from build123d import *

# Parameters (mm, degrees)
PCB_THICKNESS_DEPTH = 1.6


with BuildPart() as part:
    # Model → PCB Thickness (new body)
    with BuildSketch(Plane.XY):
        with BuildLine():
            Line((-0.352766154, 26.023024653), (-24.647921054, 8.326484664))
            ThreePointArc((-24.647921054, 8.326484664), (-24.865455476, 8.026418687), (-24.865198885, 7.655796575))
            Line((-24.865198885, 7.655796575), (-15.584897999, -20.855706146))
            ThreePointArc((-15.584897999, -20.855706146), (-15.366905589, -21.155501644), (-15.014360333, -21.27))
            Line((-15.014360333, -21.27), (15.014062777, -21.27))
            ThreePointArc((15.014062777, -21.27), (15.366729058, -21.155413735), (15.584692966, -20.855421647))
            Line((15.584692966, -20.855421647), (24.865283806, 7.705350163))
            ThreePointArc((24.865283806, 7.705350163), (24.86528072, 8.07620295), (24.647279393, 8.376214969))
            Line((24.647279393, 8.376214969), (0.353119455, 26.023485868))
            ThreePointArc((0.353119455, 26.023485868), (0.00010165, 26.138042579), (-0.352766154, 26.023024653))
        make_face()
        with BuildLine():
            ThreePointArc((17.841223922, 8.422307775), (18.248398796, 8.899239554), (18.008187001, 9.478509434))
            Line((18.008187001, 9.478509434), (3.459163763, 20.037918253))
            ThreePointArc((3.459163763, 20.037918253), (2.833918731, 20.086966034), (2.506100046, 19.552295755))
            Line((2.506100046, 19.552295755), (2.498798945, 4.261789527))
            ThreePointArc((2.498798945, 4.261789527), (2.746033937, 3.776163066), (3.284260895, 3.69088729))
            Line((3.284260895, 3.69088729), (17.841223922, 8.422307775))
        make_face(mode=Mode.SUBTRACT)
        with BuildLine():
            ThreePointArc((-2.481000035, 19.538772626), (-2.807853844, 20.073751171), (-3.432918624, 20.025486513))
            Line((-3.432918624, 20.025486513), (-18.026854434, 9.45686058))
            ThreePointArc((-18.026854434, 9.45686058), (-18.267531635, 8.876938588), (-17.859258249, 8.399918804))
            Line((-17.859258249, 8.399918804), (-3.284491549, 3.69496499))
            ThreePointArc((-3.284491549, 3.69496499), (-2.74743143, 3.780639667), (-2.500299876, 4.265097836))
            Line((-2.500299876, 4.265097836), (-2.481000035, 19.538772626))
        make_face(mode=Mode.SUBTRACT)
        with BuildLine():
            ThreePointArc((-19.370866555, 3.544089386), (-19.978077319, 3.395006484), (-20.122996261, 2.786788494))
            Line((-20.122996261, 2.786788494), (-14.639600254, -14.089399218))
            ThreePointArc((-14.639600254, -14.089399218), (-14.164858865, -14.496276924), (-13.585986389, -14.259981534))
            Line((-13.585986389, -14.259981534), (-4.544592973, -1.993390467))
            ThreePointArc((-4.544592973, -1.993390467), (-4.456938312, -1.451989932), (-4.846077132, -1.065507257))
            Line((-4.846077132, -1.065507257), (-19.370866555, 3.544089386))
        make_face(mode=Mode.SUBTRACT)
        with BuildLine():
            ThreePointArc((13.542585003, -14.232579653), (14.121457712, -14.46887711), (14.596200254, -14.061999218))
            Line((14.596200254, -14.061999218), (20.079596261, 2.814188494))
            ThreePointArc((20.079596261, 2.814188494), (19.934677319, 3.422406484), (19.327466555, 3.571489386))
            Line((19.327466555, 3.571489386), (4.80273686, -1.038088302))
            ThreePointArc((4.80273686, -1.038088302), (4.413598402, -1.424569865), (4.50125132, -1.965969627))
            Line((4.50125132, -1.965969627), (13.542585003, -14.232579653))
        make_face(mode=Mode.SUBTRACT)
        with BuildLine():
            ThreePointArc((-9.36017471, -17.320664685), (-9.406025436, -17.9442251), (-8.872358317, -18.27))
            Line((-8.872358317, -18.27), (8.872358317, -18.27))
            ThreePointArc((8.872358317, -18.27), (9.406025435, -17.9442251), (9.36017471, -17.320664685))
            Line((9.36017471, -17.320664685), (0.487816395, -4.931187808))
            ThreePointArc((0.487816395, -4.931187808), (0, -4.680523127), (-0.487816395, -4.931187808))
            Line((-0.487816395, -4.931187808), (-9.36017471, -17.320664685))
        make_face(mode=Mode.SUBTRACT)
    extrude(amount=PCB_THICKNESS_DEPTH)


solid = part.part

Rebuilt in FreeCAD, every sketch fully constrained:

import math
import FreeCAD as App
import Part
import Sketcher
from FreeCAD import Vector
Q = App.Units.Quantity

doc = App.newDocument("Part")
params = doc.addObject("Spreadsheet::Sheet", "Params")
for row, (alias, value) in enumerate([
    ("sketch1_radius", "0.6 mm"),
    ("sketch1_radius2", "0.6 mm"),
    ("sketch1_radius3", "0.6 mm"),
    ("sketch1_radius4", "0.6 mm"),
    ("sketch1_radius5", "0.6 mm"),
    ("pad1_length", "1.6 mm"),
], start=1):
    params.set(f"A{row}", alias)
    params.set(f"B{row}", "=" + value)
    params.setAlias(f"B{row}", alias)

body = doc.addObject("PartDesign::Body", "Body")

sketch1 = body.newObject("Sketcher::SketchObject", "Sketch")
sketch1.AttachmentSupport = (doc.getObject("XY_Plane"), [""])
sketch1.MapMode = "FlatFace"
sketch1.addGeometry([
    Part.LineSegment(Vector(-0.352766, 26.023025, 0), Vector(-24.647921, 8.326485, 0)),
    Part.ArcOfCircle(Part.Circle(Vector(-24.294661, 7.841503, 0), Vector(0, 0, 1), 0.6), math.radians(126.069516), math.radians(198.029718)),
    Part.LineSegment(Vector(-24.865199, 7.655797, 0), Vector(-15.584898, -20.855706, 0)),
    Part.ArcOfCircle(Part.Circle(Vector(-15.01436, -20.67, 0), Vector(0, 0, 1), 0.6), math.radians(-161.970283), math.radians(-89.999999)),
    Part.LineSegment(Vector(-15.01436, -21.27, 0), Vector(15.014063, -21.27, 0)),
    Part.ArcOfCircle(Part.Circle(Vector(15.014063, -20.67, 0), Vector(0, 0, 1), 0.6), math.radians(-90), math.radians(-18.00115)),
    Part.LineSegment(Vector(15.584693, -20.855422, 0), Vector(24.865284, 7.70535, 0)),
    Part.ArcOfCircle(Part.Circle(Vector(24.294654, 7.890772, 0), Vector(0, 0, 1), 0.6), math.radians(-18.001149), math.radians(54.005356)),
    Part.LineSegment(Vector(24.647279, 8.376215, 0), Vector(0.353119, 26.023486, 0)),
    Part.ArcOfCircle(Part.Circle(Vector(0.000494, 25.538043, 0), Vector(0, 0, 1), 0.6), math.radians(54.005356), math.radians(126.069517)),
    Part.ArcOfCircle(Part.Circle(Vector(-19.552362, 2.972198, 0), Vector(0, 0, 1), 0.6), math.radians(72.39261), math.radians(197.99997)),
    Part.LineSegment(Vector(-19.370867, 3.544089, 0), Vector(-4.846077, -1.065507, 0)),
    Part.ArcOfCircle(Part.Circle(Vector(-5.027573, -1.637398, 0), Vector(0, 0, 1), 0.6), math.radians(-36.392987), math.radians(72.39261)),
    Part.LineSegment(Vector(-4.544593, -1.99339, 0), Vector(-13.585986, -14.259982, 0)),
    Part.ArcOfCircle(Part.Circle(Vector(-14.068966, -13.903989, 0), Vector(0, 0, 1), 0.6), math.radians(-162.00003), math.radians(-36.392987)),
    Part.LineSegment(Vector(-14.6396, -14.089399, 0), Vector(-20.122996, 2.786788, 0)),
    Part.ArcOfCircle(Part.Circle(Vector(-8.872358, -17.67, 0), Vector(0, 0, 1), 0.6), math.radians(144.392773), math.radians(270)),
    Part.LineSegment(Vector(-9.360175, -17.320665, 0), Vector(-0.487816, -4.931188, 0)),
    Part.ArcOfCircle(Part.Circle(Vector(0, -5.280523, 0), Vector(0, 0, 1), 0.6), math.radians(35.607227), math.radians(144.392773)),
    Part.LineSegment(Vector(0.487816, -4.931188, 0), Vector(9.360175, -17.320665, 0)),
    Part.ArcOfCircle(Part.Circle(Vector(8.872358, -17.67, 0), Vector(0, 0, 1), 0.6), math.radians(-90), math.radians(35.607227)),
    Part.LineSegment(Vector(8.872358, -18.27, 0), Vector(-8.872358, -18.27, 0)),
    Part.ArcOfCircle(Part.Circle(Vector(14.025566, -13.876589, 0), Vector(0, 0, 1), 0.6), math.radians(-143.607236), math.radians(-17.99997)),
    Part.LineSegment(Vector(13.542585, -14.23258, 0), Vector(4.501251, -1.96597, 0)),
    Part.ArcOfCircle(Part.Circle(Vector(4.984233, -1.609979, 0), Vector(0, 0, 1), 0.6), math.radians(107.60739), math.radians(216.392764)),
    Part.LineSegment(Vector(4.802737, -1.038088, 0), Vector(19.327467, 3.571489, 0)),
    Part.ArcOfCircle(Part.Circle(Vector(19.508962, 2.999598, 0), Vector(0, 0, 1), 0.6), math.radians(-17.99997), math.radians(107.60739)),
    Part.LineSegment(Vector(20.079596, 2.814188, 0), Vector(14.5962, -14.061999, 0)),
    Part.ArcOfCircle(Part.Circle(Vector(-3.081, 19.539531, 0), Vector(0, 0, 1), 0.6), math.radians(-0.072399), math.radians(125.911277)),
    Part.LineSegment(Vector(-2.481, 19.538773, 0), Vector(-2.5003, 4.265098, 0)),
    Part.ArcOfCircle(Part.Circle(Vector(-3.100199, 4.265856, 0), Vector(0, 0, 1), 0.5999), math.radians(-107.890859), math.radians(-0.072399)),
    Part.LineSegment(Vector(-3.284492, 3.694965, 0), Vector(-17.859258, 8.399919, 0)),
    Part.ArcOfCircle(Part.Circle(Vector(-17.674935, 8.970905, 0), Vector(0, 0, 1), 0.6), math.radians(125.911277), math.radians(252.109141)),
    Part.LineSegment(Vector(-18.026854, 9.456861, 0), Vector(-3.432919, 20.025487, 0)),
    Part.ArcOfCircle(Part.Circle(Vector(17.655758, 8.992924, 0), Vector(0, 0, 1), 0.6), math.radians(-71.994388), math.radians(54.028557)),
    Part.LineSegment(Vector(17.841224, 8.422308, 0), Vector(3.284261, 3.690887, 0)),
    Part.ArcOfCircle(Part.Circle(Vector(3.0988, 4.261506, 0), Vector(0, 0, 1), 0.600001), math.radians(179.972882), math.radians(288.00509)),
    Part.LineSegment(Vector(2.498799, 4.26179, 0), Vector(2.5061, 19.552296, 0)),
    Part.ArcOfCircle(Part.Circle(Vector(3.1065, 19.552008, 0), Vector(0, 0, 1), 0.6004), math.radians(54.028587), math.radians(179.972585)),
    Part.LineSegment(Vector(3.459164, 20.037918, 0), Vector(18.008187, 9.478509, 0)),
], False)
sketch1.addConstraint([
    Sketcher.Constraint("Coincident", 0, 2, 1, 1),
    Sketcher.Constraint("Coincident", 1, 2, 2, 1),
    Sketcher.Constraint("Coincident", 2, 2, 3, 1),
    Sketcher.Constraint("Coincident", 3, 2, 4, 1),
    Sketcher.Constraint("Coincident", 4, 2, 5, 1),
    Sketcher.Constraint("Coincident", 5, 2, 6, 1),
    Sketcher.Constraint("Coincident", 6, 2, 7, 1),
    Sketcher.Constraint("Coincident", 7, 2, 8, 1),
    Sketcher.Constraint("Coincident", 8, 2, 9, 1),
    Sketcher.Constraint("Coincident", 9, 2, 0, 1),
    Sketcher.Constraint("Coincident", 10, 1, 11, 1),
    Sketcher.Constraint("Coincident", 11, 2, 12, 2),
    Sketcher.Constraint("Coincident", 12, 1, 13, 1),
    Sketcher.Constraint("Coincident", 13, 2, 14, 2),
    Sketcher.Constraint("Coincident", 14, 1, 15, 1),
    Sketcher.Constraint("Coincident", 15, 2, 10, 2),
    Sketcher.Constraint("Coincident", 16, 1, 17, 1),
    Sketcher.Constraint("Coincident", 17, 2, 18, 2),
    Sketcher.Constraint("Coincident", 18, 1, 19, 1),
    Sketcher.Constraint("Coincident", 19, 2, 20, 2),
    Sketcher.Constraint("Coincident", 20, 1, 21, 1),
    Sketcher.Constraint("Coincident", 21, 2, 16, 2),
    Sketcher.Constraint("Coincident", 22, 1, 23, 1),
    Sketcher.Constraint("Coincident", 23, 2, 24, 2),
    Sketcher.Constraint("Coincident", 24, 1, 25, 1),
    Sketcher.Constraint("Coincident", 25, 2, 26, 2),
    Sketcher.Constraint("Coincident", 26, 1, 27, 1),
    Sketcher.Constraint("Coincident", 27, 2, 22, 2),
    Sketcher.Constraint("Coincident", 28, 1, 29, 1),
    Sketcher.Constraint("Coincident", 29, 2, 30, 2),
    Sketcher.Constraint("Coincident", 30, 1, 31, 1),
    Sketcher.Constraint("Coincident", 31, 2, 32, 2),
    Sketcher.Constraint("Coincident", 32, 1, 33, 1),
    Sketcher.Constraint("Coincident", 33, 2, 28, 2),
    Sketcher.Constraint("Coincident", 34, 1, 35, 1),
    Sketcher.Constraint("Coincident", 35, 2, 36, 2),
    Sketcher.Constraint("Coincident", 36, 1, 37, 1),
    Sketcher.Constraint("Coincident", 37, 2, 38, 2),
    Sketcher.Constraint("Coincident", 38, 1, 39, 1),
    Sketcher.Constraint("Coincident", 39, 2, 34, 2),
    Sketcher.Constraint("Horizontal", 4),
    Sketcher.Constraint("Horizontal", 21),
    Sketcher.Constraint("PointOnObject", 18, 3, -2),
    Sketcher.Constraint("Radius", 1, Q("0.6 mm")),
    Sketcher.Constraint("Radius", 3, Q("0.6 mm")),
    Sketcher.Constraint("Radius", 5, Q("0.6 mm")),
    Sketcher.Constraint("Radius", 7, Q("0.6 mm")),
    Sketcher.Constraint("Radius", 9, Q("0.6 mm")),
    Sketcher.Constraint("Radius", 10, Q("0.6 mm")),
    Sketcher.Constraint("Radius", 12, Q("0.6 mm")),
    Sketcher.Constraint("Radius", 14, Q("0.6 mm")),
    Sketcher.Constraint("Radius", 16, Q("0.6 mm")),
    Sketcher.Constraint("Radius", 18, Q("0.6 mm")),
    Sketcher.Constraint("Radius", 20, Q("0.6 mm")),
    Sketcher.Constraint("Radius", 22, Q("0.6 mm")),
    Sketcher.Constraint("Radius", 24, Q("0.6 mm")),
    Sketcher.Constraint("Radius", 26, Q("0.6 mm")),
    Sketcher.Constraint("Radius", 28, Q("0.6 mm")),
    Sketcher.Constraint("Radius", 32, Q("0.6 mm")),
    Sketcher.Constraint("Radius", 34, Q("0.6 mm")),
    Sketcher.Constraint("Radius", 36, Q("0.600001 mm")),
    Sketcher.Constraint("DistanceY", 3, 3, 16, 3, Q("3 mm")),
    Sketcher.Constraint("Radius", 30, Q("0.5999 mm")),
    Sketcher.Constraint("Radius", 38, Q("0.6004 mm")),
    Sketcher.Constraint("DistanceY", 3, 3, -1, 1, Q("20.67 mm")),
    Sketcher.Constraint("DistanceX", 28, 3, -1, 1, Q("3.081 mm")),
    Sketcher.Constraint("DistanceY", 27, 2, -1, 1, Q("14.061999 mm")),
    Sketcher.Constraint("DistanceX", 10, 3, 3, 3, Q("4.538002 mm")),
    Sketcher.Constraint("DistanceX", 30, 3, 36, 3, Q("6.198999 mm")),
    Sketcher.Constraint("DistanceY", -1, 1, 10, 3, Q("2.972198 mm")),
    Sketcher.Constraint("DistanceY", 12, 3, -1, 1, Q("1.637398 mm")),
    Sketcher.Constraint("DistanceY", -1, 1, 26, 3, Q("2.999598 mm")),
    Sketcher.Constraint("DistanceX", 30, 3, -1, 1, Q("3.100199 mm")),
    Sketcher.Constraint("DistanceX", -1, 1, 38, 3, Q("3.1065 mm")),
    Sketcher.Constraint("DistanceX", 1, 2, -1, 1, Q("24.865199 mm")),
    Sketcher.Constraint("DistanceX", 14, 1, -1, 1, Q("14.6396 mm")),
    Sketcher.Constraint("DistanceY", 14, 1, -1, 1, Q("14.089399 mm")),
    Sketcher.Constraint("DistanceX", -1, 1, 27, 2, Q("14.5962 mm")),
    Sketcher.Constraint("DistanceX", 1, 3, 3, 3, Q("9.280301 mm")),
    Sketcher.Constraint("DistanceY", 12, 3, 1, 3, Q("9.478901 mm")),
    Sketcher.Constraint("DistanceY", 10, 3, 1, 2, Q("4.683598 mm")),
    Sketcher.Constraint("DistanceY", 15, 2, 10, 1, Q("0.757301 mm")),
    Sketcher.Constraint("DistanceY", 18, 1, 24, 1, Q("3.8931 mm")),
    Sketcher.Constraint("DistanceY", 26, 1, 25, 2, Q("0.757301 mm")),
    Sketcher.Constraint("DistanceX", 12, 1, 30, 1, Q("1.260101 mm")),
    Sketcher.Constraint("DistanceY", 34, 1, 39, 2, Q("1.056202 mm")),
    Sketcher.Constraint("Distance", 0, Q("30.056981 mm")),
    Sketcher.Constraint("Distance", 6, Q("30.030768 mm")),
    Sketcher.Constraint("Distance", 15, Q("17.744671 mm")),
    Sketcher.Constraint("Distance", 27, Q("17.744671 mm")),
    Sketcher.Constraint("DistanceX", 4, 1, 4, 2, Q("30.028423 mm")),
    Sketcher.Constraint("DistanceX", 21, 2, 21, 1, Q("17.744717 mm")),
    Sketcher.Constraint("DistanceY", -1, 1, 7, 3, Q("7.890772 mm")),
    Sketcher.Constraint("DistanceY", 14, 3, -1, 1, Q("13.903989 mm")),
    Sketcher.Constraint("DistanceX", 16, 3, -1, 1, Q("8.872358 mm")),
    Sketcher.Constraint("DistanceX", -1, 1, 20, 3, Q("8.872358 mm")),
    Sketcher.Constraint("DistanceY", 22, 3, -1, 1, Q("13.876589 mm")),
    Sketcher.Constraint("DistanceY", 24, 3, -1, 1, Q("1.609979 mm")),
    Sketcher.Constraint("DistanceY", -1, 1, 28, 3, Q("19.539531 mm")),
    Sketcher.Constraint("DistanceY", -1, 1, 38, 3, Q("19.552008 mm")),
    Sketcher.Constraint("DistanceX", 0, 2, -1, 1, Q("24.647921 mm")),
    Sketcher.Constraint("DistanceX", 3, 2, -1, 1, Q("15.01436 mm")),
    Sketcher.Constraint("DistanceY", 5, 2, -1, 1, Q("20.855422 mm")),
    Sketcher.Constraint("DistanceY", -1, 1, 6, 2, Q("7.70535 mm")),
    Sketcher.Constraint("DistanceX", -1, 1, 7, 2, Q("24.647279 mm")),
    Sketcher.Constraint("DistanceX", -1, 1, 8, 2, Q("0.353119 mm")),
    Sketcher.Constraint("DistanceY", 12, 1, -1, 1, Q("1.99339 mm")),
    Sketcher.Constraint("DistanceY", 13, 2, -1, 1, Q("14.259982 mm")),
    Sketcher.Constraint("DistanceX", -1, 1, 20, 1, Q("8.872358 mm")),
    Sketcher.Constraint("DistanceY", 22, 1, -1, 1, Q("14.23258 mm")),
    Sketcher.Constraint("DistanceX", -1, 1, 23, 2, Q("4.501251 mm")),
    Sketcher.Constraint("DistanceY", 23, 2, -1, 1, Q("1.96597 mm")),
    Sketcher.Constraint("DistanceY", 24, 1, -1, 1, Q("1.038088 mm")),
    Sketcher.Constraint("DistanceY", -1, 1, 25, 2, Q("3.571489 mm")),
    Sketcher.Constraint("DistanceX", 30, 1, -1, 1, Q("3.284492 mm")),
    Sketcher.Constraint("DistanceX", 31, 2, -1, 1, Q("17.859258 mm")),
    Sketcher.Constraint("DistanceY", -1, 1, 31, 2, Q("8.399919 mm")),
    Sketcher.Constraint("DistanceY", -1, 1, 32, 1, Q("9.456861 mm")),
    Sketcher.Constraint("DistanceX", 33, 2, -1, 1, Q("3.432919 mm")),
    Sketcher.Constraint("DistanceX", -1, 1, 35, 2, Q("3.284261 mm")),
    Sketcher.Constraint("DistanceY", -1, 1, 36, 1, Q("4.26179 mm")),
    Sketcher.Constraint("DistanceY", -1, 1, 38, 1, Q("20.037918 mm")),
    Sketcher.Constraint("DistanceY", -1, 1, 39, 2, Q("9.478509 mm")),
    Sketcher.Constraint("DistanceX", 9, 3, 7, 3, Q("24.29416 mm")),
    Sketcher.Constraint("DistanceY", 7, 3, 9, 3, Q("17.647271 mm")),
    Sketcher.Constraint("DistanceX", 14, 3, 5, 3, Q("29.083029 mm")),
    Sketcher.Constraint("DistanceY", 18, 3, 10, 3, Q("8.252722 mm")),
    Sketcher.Constraint("DistanceY", 18, 3, 30, 3, Q("9.546379 mm")),
    Sketcher.Constraint("DistanceY", 30, 3, 32, 3, Q("4.705049 mm")),
    Sketcher.Constraint("DistanceY", 7, 3, 34, 3, Q("1.102152 mm")),
    Sketcher.Constraint("DistanceY", 36, 3, 30, 3, Q("0.00435 mm")),
    Sketcher.Constraint("DistanceX", 36, 3, 34, 3, Q("14.556958 mm")),
    Sketcher.Constraint("DistanceX", 2, 2, 14, 3, Q("1.515932 mm")),
    Sketcher.Constraint("DistanceY", 12, 3, 11, 2, Q("0.571891 mm")),
    Sketcher.Constraint("DistanceX", 13, 2, 16, 1, Q("4.225812 mm")),
    Sketcher.Constraint("DistanceY", 17, 2, 12, 3, Q("3.29379 mm")),
    Sketcher.Constraint("DistanceX", 19, 2, 22, 3, Q("4.665392 mm")),
    Sketcher.Constraint("DistanceY", 28, 1, 28, 3, Q("0.000758 mm")),
    Sketcher.Constraint("DistanceY", 29, 2, 30, 3, Q("0.000758 mm")),
    Sketcher.Constraint("DistanceY", 37, 2, 33, 2, Q("0.473191 mm")),
])
sketch1.setExpression("Constraints[43]", "Params.sketch1_radius")
sketch1.setExpression("Constraints[44]", "Params.sketch1_radius2")
sketch1.setExpression("Constraints[45]", "Params.sketch1_radius3")
sketch1.setExpression("Constraints[46]", "Params.sketch1_radius4")
sketch1.setExpression("Constraints[47]", "Params.sketch1_radius5")
pad1 = body.newObject("PartDesign::Pad", "Pad")
pad1.Profile = sketch1
pad1.setExpression("Length", "Params.pad1_length")

doc.recompute()
